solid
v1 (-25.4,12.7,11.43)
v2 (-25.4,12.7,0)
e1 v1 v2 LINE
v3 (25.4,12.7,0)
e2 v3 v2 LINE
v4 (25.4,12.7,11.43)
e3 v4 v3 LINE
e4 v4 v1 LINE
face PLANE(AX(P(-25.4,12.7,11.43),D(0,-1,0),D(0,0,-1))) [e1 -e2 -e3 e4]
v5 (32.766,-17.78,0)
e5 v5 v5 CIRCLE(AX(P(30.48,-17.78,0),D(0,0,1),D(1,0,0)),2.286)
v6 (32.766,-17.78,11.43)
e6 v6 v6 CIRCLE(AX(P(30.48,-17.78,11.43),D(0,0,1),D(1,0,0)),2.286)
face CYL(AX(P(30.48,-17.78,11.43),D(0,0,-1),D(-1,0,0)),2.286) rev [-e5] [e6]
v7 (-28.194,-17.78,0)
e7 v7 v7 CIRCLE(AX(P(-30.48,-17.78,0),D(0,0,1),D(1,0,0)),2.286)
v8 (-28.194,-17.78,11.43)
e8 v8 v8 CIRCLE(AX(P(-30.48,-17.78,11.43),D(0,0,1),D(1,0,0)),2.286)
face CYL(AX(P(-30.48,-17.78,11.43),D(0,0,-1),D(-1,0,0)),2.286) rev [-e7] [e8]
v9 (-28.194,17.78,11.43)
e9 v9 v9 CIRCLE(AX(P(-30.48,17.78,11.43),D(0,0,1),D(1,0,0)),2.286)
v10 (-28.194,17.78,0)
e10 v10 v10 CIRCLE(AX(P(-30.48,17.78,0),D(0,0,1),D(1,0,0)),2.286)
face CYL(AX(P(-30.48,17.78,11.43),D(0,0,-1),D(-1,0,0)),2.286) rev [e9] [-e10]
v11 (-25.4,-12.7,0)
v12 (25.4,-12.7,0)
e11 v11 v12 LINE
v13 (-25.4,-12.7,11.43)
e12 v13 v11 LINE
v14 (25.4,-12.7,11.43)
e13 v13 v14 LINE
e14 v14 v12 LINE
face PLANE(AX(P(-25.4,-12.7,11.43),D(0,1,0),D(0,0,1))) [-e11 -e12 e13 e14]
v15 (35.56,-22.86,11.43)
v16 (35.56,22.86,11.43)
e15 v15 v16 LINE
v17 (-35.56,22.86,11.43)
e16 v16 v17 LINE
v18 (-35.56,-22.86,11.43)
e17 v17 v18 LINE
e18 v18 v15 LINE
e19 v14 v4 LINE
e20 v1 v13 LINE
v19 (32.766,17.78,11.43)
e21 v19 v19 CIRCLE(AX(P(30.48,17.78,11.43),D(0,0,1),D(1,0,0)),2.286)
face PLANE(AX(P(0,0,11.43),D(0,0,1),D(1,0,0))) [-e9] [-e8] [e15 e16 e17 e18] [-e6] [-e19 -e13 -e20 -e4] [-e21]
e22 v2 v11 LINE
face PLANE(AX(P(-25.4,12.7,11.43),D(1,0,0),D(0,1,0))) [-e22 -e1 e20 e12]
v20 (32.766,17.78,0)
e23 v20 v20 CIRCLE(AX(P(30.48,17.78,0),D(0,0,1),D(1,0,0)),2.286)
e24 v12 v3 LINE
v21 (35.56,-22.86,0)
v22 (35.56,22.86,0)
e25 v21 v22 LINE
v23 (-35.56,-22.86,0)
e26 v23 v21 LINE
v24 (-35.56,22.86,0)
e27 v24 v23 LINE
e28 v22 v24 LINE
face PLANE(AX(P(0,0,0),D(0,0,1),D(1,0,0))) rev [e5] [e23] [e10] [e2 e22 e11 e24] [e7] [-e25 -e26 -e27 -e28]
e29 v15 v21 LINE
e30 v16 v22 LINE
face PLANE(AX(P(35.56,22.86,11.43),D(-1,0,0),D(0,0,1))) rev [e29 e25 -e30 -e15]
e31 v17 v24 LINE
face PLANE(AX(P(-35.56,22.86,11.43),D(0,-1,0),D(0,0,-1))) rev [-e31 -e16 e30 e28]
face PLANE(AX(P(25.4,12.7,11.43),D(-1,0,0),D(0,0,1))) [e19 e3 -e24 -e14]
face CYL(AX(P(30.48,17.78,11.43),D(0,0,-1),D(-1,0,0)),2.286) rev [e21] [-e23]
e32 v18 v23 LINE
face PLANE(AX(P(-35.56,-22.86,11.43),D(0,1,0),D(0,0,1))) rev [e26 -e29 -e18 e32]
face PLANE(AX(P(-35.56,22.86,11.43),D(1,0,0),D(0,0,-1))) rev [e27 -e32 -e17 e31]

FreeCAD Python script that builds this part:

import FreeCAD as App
import Part
import Sketcher
Q = App.Units.Quantity

doc = App.newDocument("Part")
body = doc.addObject("PartDesign::Body", "Body")

# Sketch on XY plane
sketch1 = body.newObject("Sketcher::SketchObject", "Sketch")
sketch1.AttachmentSupport = (doc.getObject("XY_Plane"), [""])
sketch1.MapMode = "FlatFace"
sketch1.addGeometry(Part.LineSegment(App.Vector(-35.6, 22.9, 0), App.Vector(-35.6, -22.9, 0)), False)
sketch1.addGeometry(Part.LineSegment(App.Vector(-35.6, -22.9, 0), App.Vector(35.6, -22.9, 0)), False)
sketch1.addGeometry(Part.LineSegment(App.Vector(35.6, -22.9, 0), App.Vector(35.6, 22.9, 0)), False)
sketch1.addGeometry(Part.LineSegment(App.Vector(35.6, 22.9, 0), App.Vector(-35.6, 22.9, 0)), False)
sketch1.addGeometry(Part.Circle(App.Vector(-30.5, -17.8, 0), App.Vector(0, 0, 1), 2.3), False)
sketch1.addGeometry(Part.Circle(App.Vector(30.5, -17.8, 0), App.Vector(0, 0, 1), 2.3), False)
sketch1.addGeometry(Part.Circle(App.Vector(-30.5, 17.8, 0), App.Vector(0, 0, 1), 2.3), False)
sketch1.addGeometry(Part.LineSegment(App.Vector(25.4, -12.7, 0), App.Vector(-25.4, -12.7, 0)), False)
sketch1.addGeometry(Part.LineSegment(App.Vector(-25.4, -12.7, 0), App.Vector(-25.4, 12.7, 0)), False)
sketch1.addGeometry(Part.LineSegment(App.Vector(-25.4, 12.7, 0), App.Vector(25.4, 12.7, 0)), False)
sketch1.addGeometry(Part.LineSegment(App.Vector(25.4, 12.7, 0), App.Vector(25.4, -12.7, 0)), False)
sketch1.addGeometry(Part.Circle(App.Vector(30.5, 17.8, 0), App.Vector(0, 0, 1), 2.3), False)
sketch1.addConstraint(Sketcher.Constraint("Coincident", 0, 2, 1, 1))
sketch1.addConstraint(Sketcher.Constraint("Coincident", 1, 2, 2, 1))
sketch1.addConstraint(Sketcher.Constraint("Coincident", 2, 2, 3, 1))
sketch1.addConstraint(Sketcher.Constraint("Coincident", 3, 2, 0, 1))
sketch1.addConstraint(Sketcher.Constraint("Coincident", 7, 2, 8, 1))
sketch1.addConstraint(Sketcher.Constraint("Coincident", 8, 2, 9, 1))
sketch1.addConstraint(Sketcher.Constraint("Coincident", 9, 2, 10, 1))
sketch1.addConstraint(Sketcher.Constraint("Coincident", 10, 2, 7, 1))
sketch1.addConstraint(Sketcher.Constraint("Vertical", 0))
sketch1.addConstraint(Sketcher.Constraint("Horizontal", 1))
sketch1.addConstraint(Sketcher.Constraint("Vertical", 2))
sketch1.addConstraint(Sketcher.Constraint("Horizontal", 3))
sketch1.addConstraint(Sketcher.Constraint("Horizontal", 7))
sketch1.addConstraint(Sketcher.Constraint("Vertical", 8))
sketch1.addConstraint(Sketcher.Constraint("Horizontal", 9))
sketch1.addConstraint(Sketcher.Constraint("Vertical", 10))
sketch1.addConstraint(Sketcher.Constraint("Equal", 4, 5))
sketch1.addConstraint(Sketcher.Constraint("Equal", 5, 6))
sketch1.addConstraint(Sketcher.Constraint("Equal", 6, 11))
sketch1.addConstraint(Sketcher.Constraint("Symmetric", 5, 3, 6, 3, -1, 1))
sketch1.addConstraint(Sketcher.Constraint("Symmetric", 4, 3, 11, 3, -1, 1))
sketch1.addConstraint(Sketcher.Constraint("Symmetric", 0, 2, 2, 2, -1, 1))
sketch1.addConstraint(Sketcher.Constraint("Symmetric", 7, 2, 9, 2, -1, 1))
sketch1.addConstraint(Sketcher.Constraint("Symmetric", 4, 3, 5, 3, -2))
sketch1.addConstraint(Sketcher.Constraint("Diameter", 4, Q("0.18 in")))
sketch1.addConstraint(Sketcher.Constraint("DistanceX", 7, 2, 7, 1, Q("2 in")))
sketch1.addConstraint(Sketcher.Constraint("DistanceY", 8, 1, 8, 2, Q("1 in")))
sketch1.addConstraint(Sketcher.Constraint("DistanceX", 1, 1, 1, 2, Q("2.8 in")))
sketch1.addConstraint(Sketcher.Constraint("DistanceY", 0, 2, 0, 1, Q("1.8 in")))
sketch1.addConstraint(Sketcher.Constraint("DistanceX", 4, 3, -1, 1, Q("1.2 in")))
sketch1.addConstraint(Sketcher.Constraint("DistanceY", 4, 3, -1, 1, Q("0.7 in")))
pad1 = body.newObject("PartDesign::Pad", "Pad")
pad1.Profile = sketch1
pad1.Length = Q("0.45 in")

doc.recompute()
